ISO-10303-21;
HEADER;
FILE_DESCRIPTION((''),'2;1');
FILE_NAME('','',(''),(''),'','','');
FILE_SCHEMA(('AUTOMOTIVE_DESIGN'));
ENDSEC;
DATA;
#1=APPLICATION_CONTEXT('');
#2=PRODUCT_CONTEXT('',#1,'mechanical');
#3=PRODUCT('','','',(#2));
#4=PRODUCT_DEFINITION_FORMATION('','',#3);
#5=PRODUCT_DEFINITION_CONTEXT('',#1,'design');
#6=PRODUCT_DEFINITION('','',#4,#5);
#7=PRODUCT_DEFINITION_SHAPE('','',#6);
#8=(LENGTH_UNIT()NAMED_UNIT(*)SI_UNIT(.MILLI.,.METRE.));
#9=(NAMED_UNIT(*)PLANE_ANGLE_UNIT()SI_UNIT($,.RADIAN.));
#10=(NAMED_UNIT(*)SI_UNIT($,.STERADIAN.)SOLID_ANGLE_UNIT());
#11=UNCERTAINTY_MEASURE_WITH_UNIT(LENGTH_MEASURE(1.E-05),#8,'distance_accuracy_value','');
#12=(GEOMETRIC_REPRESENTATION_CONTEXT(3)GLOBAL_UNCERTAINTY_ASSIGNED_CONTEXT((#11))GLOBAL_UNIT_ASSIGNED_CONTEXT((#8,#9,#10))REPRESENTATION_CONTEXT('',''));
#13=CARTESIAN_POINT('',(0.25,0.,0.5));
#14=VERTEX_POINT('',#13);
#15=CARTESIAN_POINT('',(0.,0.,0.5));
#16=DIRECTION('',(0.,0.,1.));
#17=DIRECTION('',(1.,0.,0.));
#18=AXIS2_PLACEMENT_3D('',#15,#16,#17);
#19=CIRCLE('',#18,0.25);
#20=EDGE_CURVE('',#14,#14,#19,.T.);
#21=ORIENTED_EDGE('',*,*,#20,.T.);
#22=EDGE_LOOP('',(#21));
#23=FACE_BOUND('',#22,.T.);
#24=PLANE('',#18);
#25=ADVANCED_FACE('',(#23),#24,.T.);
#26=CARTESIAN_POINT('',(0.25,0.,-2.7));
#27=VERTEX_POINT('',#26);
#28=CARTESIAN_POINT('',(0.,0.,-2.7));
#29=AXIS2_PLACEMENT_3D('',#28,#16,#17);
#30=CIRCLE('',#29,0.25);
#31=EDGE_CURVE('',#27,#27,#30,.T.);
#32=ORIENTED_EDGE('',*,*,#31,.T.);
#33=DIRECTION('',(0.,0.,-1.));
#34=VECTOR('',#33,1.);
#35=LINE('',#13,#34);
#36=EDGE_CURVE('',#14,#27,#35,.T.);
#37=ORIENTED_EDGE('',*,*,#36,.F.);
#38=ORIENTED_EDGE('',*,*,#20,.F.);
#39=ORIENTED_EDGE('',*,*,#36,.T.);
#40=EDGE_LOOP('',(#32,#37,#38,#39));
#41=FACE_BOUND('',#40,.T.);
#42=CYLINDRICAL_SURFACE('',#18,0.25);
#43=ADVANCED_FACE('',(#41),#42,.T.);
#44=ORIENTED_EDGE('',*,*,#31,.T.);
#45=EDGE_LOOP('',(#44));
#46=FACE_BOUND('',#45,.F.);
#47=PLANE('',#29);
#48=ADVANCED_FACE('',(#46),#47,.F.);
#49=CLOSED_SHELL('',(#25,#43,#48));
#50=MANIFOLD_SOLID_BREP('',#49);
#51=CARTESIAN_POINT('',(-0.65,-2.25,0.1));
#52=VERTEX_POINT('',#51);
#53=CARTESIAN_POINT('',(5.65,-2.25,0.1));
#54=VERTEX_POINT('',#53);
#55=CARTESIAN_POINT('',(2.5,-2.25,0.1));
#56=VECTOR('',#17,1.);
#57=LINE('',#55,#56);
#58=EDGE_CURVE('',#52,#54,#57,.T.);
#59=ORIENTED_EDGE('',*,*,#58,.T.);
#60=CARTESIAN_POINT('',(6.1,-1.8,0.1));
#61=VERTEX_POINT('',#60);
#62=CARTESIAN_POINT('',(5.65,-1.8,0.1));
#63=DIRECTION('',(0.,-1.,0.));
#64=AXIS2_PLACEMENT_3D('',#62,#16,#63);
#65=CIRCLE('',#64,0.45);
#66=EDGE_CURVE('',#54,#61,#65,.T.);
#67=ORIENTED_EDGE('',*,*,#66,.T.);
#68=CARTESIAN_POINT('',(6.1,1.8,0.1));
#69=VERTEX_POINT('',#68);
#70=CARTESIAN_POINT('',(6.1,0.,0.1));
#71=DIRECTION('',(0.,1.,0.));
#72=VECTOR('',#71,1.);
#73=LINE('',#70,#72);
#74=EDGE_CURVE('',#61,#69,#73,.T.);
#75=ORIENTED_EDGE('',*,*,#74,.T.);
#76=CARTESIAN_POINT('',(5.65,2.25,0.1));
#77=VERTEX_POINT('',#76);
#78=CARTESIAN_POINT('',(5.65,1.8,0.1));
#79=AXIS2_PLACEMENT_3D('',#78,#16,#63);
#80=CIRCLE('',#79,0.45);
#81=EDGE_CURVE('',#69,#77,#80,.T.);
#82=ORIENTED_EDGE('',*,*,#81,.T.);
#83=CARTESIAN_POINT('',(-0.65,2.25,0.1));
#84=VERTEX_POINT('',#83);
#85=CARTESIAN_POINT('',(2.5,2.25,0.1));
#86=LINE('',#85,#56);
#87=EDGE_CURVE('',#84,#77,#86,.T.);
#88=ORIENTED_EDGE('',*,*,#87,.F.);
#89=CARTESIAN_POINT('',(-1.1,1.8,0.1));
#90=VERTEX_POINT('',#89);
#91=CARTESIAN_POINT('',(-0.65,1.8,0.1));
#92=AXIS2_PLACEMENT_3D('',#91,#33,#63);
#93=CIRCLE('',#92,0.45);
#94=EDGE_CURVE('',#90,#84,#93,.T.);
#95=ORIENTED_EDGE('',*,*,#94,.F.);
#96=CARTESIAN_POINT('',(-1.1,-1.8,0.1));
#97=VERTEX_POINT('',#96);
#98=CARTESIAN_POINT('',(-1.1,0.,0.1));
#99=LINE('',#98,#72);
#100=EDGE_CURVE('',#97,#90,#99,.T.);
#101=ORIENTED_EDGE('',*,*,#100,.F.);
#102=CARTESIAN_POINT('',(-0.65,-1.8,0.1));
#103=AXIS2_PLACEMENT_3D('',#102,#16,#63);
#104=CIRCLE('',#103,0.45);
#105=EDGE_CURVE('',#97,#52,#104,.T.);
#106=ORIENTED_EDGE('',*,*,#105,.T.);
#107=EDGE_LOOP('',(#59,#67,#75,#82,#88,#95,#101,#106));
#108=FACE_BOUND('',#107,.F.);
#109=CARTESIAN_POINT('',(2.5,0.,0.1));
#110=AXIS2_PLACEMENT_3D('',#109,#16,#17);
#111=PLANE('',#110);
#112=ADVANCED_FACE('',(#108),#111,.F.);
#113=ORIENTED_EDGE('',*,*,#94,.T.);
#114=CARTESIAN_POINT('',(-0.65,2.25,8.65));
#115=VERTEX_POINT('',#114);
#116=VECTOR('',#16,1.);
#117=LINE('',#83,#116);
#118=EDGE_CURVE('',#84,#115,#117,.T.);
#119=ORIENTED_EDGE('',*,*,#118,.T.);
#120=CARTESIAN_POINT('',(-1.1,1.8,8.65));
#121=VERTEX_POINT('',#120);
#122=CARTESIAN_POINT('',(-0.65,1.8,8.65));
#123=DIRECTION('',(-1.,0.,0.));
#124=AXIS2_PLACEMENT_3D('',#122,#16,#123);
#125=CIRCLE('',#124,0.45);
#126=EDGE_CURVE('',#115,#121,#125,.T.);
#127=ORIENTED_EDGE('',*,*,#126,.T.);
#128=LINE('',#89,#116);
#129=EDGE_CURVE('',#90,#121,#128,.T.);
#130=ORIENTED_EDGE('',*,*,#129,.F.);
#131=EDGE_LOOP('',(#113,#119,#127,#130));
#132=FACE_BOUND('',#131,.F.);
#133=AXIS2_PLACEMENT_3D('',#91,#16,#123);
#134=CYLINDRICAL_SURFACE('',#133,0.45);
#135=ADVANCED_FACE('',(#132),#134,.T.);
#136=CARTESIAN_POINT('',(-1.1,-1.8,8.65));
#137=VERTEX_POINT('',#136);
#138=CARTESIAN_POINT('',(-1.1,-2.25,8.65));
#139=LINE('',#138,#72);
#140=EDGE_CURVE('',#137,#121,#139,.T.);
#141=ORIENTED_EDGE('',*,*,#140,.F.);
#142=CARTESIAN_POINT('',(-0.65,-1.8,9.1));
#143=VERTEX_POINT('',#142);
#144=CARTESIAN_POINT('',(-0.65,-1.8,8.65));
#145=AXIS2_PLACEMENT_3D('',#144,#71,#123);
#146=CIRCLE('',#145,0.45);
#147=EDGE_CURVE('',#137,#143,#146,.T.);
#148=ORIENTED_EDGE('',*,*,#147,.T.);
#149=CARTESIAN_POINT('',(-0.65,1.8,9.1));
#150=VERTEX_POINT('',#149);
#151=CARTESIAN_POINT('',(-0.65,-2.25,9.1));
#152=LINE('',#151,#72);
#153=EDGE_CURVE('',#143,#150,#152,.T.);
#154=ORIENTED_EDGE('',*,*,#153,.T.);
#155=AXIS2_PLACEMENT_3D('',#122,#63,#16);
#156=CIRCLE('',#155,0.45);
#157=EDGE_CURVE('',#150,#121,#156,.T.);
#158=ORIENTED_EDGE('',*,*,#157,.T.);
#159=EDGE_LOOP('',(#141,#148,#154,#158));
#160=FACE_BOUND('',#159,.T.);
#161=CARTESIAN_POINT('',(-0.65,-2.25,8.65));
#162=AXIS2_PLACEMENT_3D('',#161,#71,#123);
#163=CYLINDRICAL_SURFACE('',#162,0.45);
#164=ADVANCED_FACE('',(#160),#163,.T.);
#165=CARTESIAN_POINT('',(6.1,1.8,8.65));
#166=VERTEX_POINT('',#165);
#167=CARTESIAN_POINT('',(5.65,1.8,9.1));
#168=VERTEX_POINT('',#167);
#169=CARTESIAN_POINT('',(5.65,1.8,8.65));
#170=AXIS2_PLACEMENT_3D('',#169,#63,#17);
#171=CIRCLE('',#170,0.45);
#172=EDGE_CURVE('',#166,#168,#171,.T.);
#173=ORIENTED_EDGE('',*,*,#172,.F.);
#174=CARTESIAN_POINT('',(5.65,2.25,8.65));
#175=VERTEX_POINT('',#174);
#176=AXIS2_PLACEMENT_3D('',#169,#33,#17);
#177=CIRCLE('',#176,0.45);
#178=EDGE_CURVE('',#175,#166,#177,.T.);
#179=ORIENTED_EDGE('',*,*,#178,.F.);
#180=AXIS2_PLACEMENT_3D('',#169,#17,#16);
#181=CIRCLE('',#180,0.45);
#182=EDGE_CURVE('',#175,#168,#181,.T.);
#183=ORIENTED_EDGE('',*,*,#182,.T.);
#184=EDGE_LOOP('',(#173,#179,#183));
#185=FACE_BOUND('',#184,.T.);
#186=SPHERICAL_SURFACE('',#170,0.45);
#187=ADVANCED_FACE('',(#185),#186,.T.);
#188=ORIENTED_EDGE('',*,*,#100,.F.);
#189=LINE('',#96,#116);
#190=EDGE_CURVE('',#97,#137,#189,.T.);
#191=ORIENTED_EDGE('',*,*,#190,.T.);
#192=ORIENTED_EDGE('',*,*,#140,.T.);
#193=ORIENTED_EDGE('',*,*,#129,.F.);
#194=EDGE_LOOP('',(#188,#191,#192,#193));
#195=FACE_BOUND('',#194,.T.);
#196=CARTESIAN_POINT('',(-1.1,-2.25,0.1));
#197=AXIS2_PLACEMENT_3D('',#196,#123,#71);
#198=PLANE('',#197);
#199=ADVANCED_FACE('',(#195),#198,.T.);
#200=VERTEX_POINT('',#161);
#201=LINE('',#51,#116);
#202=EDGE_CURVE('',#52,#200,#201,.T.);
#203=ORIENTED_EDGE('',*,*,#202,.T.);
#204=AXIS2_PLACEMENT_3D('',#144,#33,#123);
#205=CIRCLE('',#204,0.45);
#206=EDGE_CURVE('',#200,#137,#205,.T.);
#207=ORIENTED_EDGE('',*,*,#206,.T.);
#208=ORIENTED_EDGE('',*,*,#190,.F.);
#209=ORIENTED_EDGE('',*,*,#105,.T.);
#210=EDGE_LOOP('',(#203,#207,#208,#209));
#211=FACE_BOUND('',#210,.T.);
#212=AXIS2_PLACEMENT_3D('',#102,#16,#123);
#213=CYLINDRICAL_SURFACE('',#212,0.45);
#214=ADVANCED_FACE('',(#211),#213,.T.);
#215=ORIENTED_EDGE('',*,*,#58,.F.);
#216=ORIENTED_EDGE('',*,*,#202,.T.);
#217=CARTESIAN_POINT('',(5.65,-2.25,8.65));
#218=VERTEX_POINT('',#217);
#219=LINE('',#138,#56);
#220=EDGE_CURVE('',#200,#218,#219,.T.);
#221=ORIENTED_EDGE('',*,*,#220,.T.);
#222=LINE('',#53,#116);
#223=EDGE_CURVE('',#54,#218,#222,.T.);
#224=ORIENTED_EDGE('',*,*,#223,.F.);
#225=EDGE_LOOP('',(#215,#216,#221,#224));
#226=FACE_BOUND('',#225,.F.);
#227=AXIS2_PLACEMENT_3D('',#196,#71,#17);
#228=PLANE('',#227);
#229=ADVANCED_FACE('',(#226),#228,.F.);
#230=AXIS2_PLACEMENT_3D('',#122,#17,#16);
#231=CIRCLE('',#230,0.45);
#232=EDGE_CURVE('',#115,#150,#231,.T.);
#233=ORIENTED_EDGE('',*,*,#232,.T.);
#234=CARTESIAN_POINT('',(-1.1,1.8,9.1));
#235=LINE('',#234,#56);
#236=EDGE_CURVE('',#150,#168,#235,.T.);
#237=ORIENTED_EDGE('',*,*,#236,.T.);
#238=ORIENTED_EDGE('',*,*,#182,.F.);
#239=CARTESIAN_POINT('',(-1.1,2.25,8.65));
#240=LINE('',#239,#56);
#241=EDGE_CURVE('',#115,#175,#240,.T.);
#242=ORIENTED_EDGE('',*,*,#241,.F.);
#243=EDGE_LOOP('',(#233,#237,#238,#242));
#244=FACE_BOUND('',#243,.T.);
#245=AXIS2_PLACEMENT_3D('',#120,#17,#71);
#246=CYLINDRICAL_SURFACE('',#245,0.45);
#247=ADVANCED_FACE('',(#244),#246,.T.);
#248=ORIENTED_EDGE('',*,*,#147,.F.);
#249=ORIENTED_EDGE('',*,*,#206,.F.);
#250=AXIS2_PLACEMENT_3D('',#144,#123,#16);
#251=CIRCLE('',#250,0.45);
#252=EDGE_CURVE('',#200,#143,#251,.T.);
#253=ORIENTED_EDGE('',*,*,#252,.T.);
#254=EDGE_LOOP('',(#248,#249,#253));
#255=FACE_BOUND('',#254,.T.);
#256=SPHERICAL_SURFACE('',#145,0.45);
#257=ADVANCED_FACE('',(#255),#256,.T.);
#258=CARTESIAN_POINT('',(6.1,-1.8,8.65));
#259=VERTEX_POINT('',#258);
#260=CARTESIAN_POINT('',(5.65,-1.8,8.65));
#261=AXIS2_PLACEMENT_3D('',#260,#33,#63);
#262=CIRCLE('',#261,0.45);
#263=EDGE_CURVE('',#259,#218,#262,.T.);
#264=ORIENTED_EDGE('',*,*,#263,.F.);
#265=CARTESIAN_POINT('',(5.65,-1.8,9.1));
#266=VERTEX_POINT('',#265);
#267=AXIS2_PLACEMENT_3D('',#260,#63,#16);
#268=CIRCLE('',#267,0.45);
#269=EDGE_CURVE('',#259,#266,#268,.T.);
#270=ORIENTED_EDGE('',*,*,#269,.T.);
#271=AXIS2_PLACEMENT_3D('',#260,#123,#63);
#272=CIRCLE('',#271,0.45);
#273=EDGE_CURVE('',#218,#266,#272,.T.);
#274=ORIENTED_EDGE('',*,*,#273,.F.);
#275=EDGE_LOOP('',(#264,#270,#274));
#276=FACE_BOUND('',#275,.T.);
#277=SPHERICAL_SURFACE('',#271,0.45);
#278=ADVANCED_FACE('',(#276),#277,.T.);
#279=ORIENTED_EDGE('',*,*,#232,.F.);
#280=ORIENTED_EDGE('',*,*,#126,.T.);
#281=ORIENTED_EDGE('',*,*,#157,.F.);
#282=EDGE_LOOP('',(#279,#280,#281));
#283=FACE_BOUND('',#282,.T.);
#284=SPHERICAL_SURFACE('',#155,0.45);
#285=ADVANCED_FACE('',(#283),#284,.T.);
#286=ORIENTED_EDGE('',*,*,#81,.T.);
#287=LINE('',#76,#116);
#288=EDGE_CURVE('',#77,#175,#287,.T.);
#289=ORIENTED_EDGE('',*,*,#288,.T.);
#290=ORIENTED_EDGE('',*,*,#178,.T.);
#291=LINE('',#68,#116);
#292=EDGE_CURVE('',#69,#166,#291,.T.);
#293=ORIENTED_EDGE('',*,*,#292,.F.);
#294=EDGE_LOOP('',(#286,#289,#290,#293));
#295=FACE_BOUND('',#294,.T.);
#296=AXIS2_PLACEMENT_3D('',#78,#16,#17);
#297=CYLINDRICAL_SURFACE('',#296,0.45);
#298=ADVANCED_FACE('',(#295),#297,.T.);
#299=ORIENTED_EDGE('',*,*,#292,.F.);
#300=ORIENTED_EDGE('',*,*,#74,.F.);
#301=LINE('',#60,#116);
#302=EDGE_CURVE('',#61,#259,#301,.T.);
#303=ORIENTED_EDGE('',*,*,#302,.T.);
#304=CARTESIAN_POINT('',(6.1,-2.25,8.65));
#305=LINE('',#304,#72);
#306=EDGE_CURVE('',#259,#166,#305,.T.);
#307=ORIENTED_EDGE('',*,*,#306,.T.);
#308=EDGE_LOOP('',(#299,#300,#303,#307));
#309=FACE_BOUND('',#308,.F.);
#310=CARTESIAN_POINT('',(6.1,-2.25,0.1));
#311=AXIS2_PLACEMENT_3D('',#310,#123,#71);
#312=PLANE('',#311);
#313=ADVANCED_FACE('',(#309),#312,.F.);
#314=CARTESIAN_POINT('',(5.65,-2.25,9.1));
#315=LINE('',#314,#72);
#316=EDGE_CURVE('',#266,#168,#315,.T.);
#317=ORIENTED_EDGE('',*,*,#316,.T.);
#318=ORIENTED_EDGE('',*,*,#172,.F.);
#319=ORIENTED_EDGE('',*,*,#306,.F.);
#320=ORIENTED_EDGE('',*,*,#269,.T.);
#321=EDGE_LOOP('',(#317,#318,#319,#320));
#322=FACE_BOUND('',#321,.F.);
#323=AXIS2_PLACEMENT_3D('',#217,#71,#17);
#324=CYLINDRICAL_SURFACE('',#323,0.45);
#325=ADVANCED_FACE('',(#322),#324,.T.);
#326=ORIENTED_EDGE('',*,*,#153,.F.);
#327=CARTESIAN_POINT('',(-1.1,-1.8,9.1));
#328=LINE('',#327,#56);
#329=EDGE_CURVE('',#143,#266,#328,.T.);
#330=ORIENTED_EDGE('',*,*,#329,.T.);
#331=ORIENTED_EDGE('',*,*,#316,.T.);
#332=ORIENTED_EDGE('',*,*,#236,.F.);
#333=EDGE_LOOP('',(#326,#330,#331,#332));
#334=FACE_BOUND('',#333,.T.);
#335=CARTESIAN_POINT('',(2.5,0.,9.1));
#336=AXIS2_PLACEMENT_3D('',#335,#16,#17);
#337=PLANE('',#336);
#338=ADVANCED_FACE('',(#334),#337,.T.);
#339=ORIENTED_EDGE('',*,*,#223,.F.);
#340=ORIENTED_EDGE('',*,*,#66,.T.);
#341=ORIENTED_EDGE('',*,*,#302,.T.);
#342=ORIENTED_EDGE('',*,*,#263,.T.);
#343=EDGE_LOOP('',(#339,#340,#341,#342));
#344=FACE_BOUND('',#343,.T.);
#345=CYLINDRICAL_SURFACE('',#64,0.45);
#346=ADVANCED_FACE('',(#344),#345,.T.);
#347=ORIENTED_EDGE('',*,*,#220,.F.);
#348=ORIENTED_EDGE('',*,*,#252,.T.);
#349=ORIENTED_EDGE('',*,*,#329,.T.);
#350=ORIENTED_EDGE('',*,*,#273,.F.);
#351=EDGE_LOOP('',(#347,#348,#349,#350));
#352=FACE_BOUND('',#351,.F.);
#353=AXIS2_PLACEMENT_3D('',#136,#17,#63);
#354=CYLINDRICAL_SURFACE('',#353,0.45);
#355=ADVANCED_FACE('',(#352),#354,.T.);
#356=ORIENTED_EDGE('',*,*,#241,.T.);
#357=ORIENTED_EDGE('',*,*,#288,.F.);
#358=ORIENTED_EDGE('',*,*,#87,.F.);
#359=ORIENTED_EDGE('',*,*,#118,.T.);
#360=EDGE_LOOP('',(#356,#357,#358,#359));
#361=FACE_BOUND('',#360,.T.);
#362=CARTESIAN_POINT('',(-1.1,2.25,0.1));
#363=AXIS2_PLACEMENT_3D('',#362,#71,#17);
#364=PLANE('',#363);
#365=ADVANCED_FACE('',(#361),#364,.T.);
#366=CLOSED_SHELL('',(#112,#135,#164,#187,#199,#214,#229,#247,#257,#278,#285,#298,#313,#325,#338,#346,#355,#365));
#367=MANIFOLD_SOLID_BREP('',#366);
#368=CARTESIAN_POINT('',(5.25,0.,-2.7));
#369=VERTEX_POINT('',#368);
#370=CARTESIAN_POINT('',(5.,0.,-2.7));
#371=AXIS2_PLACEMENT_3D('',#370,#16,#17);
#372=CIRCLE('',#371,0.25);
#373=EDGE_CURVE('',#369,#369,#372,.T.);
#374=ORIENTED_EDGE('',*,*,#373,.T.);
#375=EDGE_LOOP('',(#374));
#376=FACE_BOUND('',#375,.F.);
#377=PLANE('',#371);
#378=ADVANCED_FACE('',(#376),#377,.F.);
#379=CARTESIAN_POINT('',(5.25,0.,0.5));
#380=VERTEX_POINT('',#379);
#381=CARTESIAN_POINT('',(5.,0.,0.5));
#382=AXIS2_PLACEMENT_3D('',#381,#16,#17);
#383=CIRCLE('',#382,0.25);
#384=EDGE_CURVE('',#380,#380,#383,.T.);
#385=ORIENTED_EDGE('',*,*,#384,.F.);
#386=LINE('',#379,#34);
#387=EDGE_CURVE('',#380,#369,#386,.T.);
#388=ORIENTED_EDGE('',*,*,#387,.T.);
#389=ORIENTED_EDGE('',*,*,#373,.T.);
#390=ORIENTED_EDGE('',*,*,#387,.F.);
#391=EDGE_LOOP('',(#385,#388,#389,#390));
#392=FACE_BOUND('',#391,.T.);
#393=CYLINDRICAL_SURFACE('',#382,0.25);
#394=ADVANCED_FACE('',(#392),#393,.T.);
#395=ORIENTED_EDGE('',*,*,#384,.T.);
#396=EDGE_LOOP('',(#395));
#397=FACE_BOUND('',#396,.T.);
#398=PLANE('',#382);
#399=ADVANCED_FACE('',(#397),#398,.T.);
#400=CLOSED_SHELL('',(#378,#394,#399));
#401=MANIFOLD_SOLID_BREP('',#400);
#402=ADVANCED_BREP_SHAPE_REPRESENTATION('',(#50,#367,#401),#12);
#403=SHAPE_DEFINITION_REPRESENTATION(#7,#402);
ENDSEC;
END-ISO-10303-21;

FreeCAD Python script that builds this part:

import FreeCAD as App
import Part
import Sketcher
from FreeCAD import Vector


def edges_at(feature, points):
    """Names of the edges that pass closest to the given points."""
    edges = feature.Shape.Edges
    near = lambda p: min(range(len(edges)), key=lambda i: edges[i].distToShape(Part.Vertex(*p))[0])
    return sorted({f"Edge{near(p) + 1}" for p in points})


def add_polygon(sketch, points):
    """Adds a closed chain of lines whose ends are joined by coincident constraints."""
    first, n = sketch.GeometryCount, len(points)
    for a, b in zip(points, points[1:] + points[:1]):
        sketch.addGeometry(Part.LineSegment(App.Vector(*a, 0), App.Vector(*b, 0)), False)
    for i in range(n):
        sketch.addConstraint(Sketcher.Constraint("Coincident", first + i, 2, first + (i + 1) % n, 1))

doc = App.newDocument("Part")
body = doc.addObject("PartDesign::Body", "Body")

sketch1 = doc.addObject("Sketcher::SketchObject", "Sketch")
body.addObject(sketch1)
sketch1.AttachmentSupport = (doc.XY_Plane, [""])
sketch1.MapMode = "FlatFace"
sketch1.AttachmentOffset = App.Placement(Vector(0, 0, 0.1), App.Rotation())
add_polygon(sketch1, [(-1.1, 2.2), (-1.1, -2.2), (6.1, -2.2), (6.1, 2.2)])
sketch1.addConstraint([
    Sketcher.Constraint("Vertical", 0),
    Sketcher.Constraint("Horizontal", 1),
    Sketcher.Constraint("Vertical", 2),
    Sketcher.Constraint("Horizontal", 3),
    Sketcher.Constraint("DistanceX", 1, 1, 1, 2, 7.2),
    Sketcher.Constraint("DistanceY", 0, 2, 0, 1, 4.5),
    Sketcher.Constraint("DistanceX", 0, 2, -1, 1, 1.1),
    Sketcher.Constraint("DistanceY", 0, 2, -1, 1, 2.25),
])
pad1 = doc.addObject("PartDesign::Pad", "Pad")
body.addObject(pad1)
pad1.Profile = sketch1
pad1.Length = 9
doc.recompute()

fillet = doc.addObject("PartDesign::Fillet", "Fillet")
body.addObject(fillet)
fillet.Base = (pad1, edges_at(pad1, [
    (-1.1, 0, 9.1),
    (-1.1, -2.25, 4.6),
    (2.5, -2.25, 9.1),
    (6.1, -2.25, 4.6),
    (6.1, 0, 9.1),
    (6.1, 2.25, 4.6),
    (2.5, 2.25, 9.1),
    (-1.1, 2.25, 4.6),
]))
fillet.Radius = 0.45
body2 = doc.addObject("PartDesign::Body", "Body001")
body2.AllowCompound = True

sketch2 = doc.addObject("Sketcher::SketchObject", "Sketch001")
body2.addObject(sketch2)
sketch2.AttachmentSupport = (doc.getObject("XY_Plane001"), [""])
sketch2.MapMode = "FlatFace"
sketch2.AttachmentOffset = App.Placement(Vector(0, 0, 0.5), App.Rotation())
sketch2.addGeometry([
    Part.Circle(Vector(0, 0, 0), Vector(0, 0, 1), 0.25),
    Part.Circle(Vector(5, 0, 0), Vector(0, 0, 1), 0.25),
], False)
sketch2.addConstraint([
    Sketcher.Constraint("Coincident", 0, 3, -1, 1),
    Sketcher.Constraint("Equal", 0, 1),
    Sketcher.Constraint("PointOnObject", 1, 3, -1),
    Sketcher.Constraint("Diameter", 0, 0.5),
    Sketcher.Constraint("DistanceX", -1, 1, 1, 3, 5.0),
])
pad2 = doc.addObject("PartDesign::Pad", "Pad001")
body2.addObject(pad2)
pad2.Profile = sketch2
pad2.Length = 3.2
pad2.Reversed = True

doc.recompute()
